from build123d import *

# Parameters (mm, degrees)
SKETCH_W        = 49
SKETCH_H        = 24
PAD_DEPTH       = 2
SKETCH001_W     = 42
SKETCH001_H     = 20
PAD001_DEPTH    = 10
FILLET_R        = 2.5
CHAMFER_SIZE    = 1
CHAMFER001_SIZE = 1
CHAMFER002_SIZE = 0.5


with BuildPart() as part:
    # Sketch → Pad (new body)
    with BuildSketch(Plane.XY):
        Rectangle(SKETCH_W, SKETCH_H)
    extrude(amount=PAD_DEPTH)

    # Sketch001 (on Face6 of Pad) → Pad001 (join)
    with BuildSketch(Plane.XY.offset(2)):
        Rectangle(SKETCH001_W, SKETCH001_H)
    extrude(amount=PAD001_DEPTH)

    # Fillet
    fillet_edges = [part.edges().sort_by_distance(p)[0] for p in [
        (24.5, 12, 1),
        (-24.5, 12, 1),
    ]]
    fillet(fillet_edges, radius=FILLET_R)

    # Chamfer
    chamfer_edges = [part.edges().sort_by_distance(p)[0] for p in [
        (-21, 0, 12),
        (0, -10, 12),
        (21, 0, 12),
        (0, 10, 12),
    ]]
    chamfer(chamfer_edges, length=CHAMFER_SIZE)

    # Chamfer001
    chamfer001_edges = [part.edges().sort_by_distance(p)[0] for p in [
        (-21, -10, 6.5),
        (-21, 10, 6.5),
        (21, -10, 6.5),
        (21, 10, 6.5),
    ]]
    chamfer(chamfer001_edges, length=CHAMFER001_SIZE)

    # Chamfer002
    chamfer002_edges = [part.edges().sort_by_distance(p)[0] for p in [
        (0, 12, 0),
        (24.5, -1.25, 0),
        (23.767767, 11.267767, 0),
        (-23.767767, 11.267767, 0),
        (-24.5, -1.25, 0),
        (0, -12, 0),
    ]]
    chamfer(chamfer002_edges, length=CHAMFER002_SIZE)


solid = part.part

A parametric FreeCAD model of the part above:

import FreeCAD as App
import Part
import Sketcher
from FreeCAD import Vector
Q = App.Units.Quantity


def edges_at(feature, points):
    """Names of the edges that pass closest to the given points."""
    edges = feature.Shape.Edges
    near = lambda p: min(range(len(edges)), key=lambda i: edges[i].distToShape(Part.Vertex(*p))[0])
    return sorted({f"Edge{near(p) + 1}" for p in points})

doc = App.newDocument("Part")
params = doc.addObject("Spreadsheet::Sheet", "Params")
for row, (alias, value) in enumerate([
    ("sketch1_width", "49 mm"),
    ("sketch1_height", "24 mm"),
    ("pad1_length", "2 mm"),
    ("sketch2_width", "42 mm"),
    ("sketch2_height", "20 mm"),
    ("pad2_length", "10 mm"),
    ("fillet_radius", "2.5 mm"),
    ("chamfer_size", "1 mm"),
    ("chamfer2_size", "1 mm"),
    ("chamfer3_size", "0.5 mm"),
], start=1):
    params.set(f"A{row}", alias)
    params.set(f"B{row}", "=" + value)
    params.setAlias(f"B{row}", alias)

body = doc.addObject("PartDesign::Body", "Body")

sketch1 = body.newObject("Sketcher::SketchObject", "Sketch")
sketch1.AttachmentSupport = (doc.getObject("XY_Plane"), [""])
sketch1.MapMode = "FlatFace"
sketch1.addGeometry([
    Part.LineSegment(Vector(-24, 12, 0), Vector(-24, -12, 0)),
    Part.LineSegment(Vector(-24, -12, 0), Vector(24, -12, 0)),
    Part.LineSegment(Vector(24, -12, 0), Vector(24, 12, 0)),
    Part.LineSegment(Vector(24, 12, 0), Vector(-24, 12, 0)),
], False)
sketch1.addConstraint([
    Sketcher.Constraint("Coincident", 0, 2, 1, 1),
    Sketcher.Constraint("Coincident", 1, 2, 2, 1),
    Sketcher.Constraint("Coincident", 2, 2, 3, 1),
    Sketcher.Constraint("Coincident", 3, 2, 0, 1),
    Sketcher.Constraint("Vertical", 0),
    Sketcher.Constraint("Horizontal", 1),
    Sketcher.Constraint("Vertical", 2),
    Sketcher.Constraint("Horizontal", 3),
    Sketcher.Constraint("Symmetric", 0, 2, 2, 2, -1, 1),
    Sketcher.Constraint("DistanceX", 1, 1, 1, 2, Q("49 mm")),
    Sketcher.Constraint("DistanceY", 0, 2, 0, 1, Q("24 mm")),
])
sketch1.setExpression("Constraints[9]", "Params.sketch1_width")
sketch1.setExpression("Constraints[10]", "Params.sketch1_height")
pad1 = body.newObject("PartDesign::Pad", "Pad")
pad1.Profile = sketch1
pad1.setExpression("Length", "Params.pad1_length")

sketch2 = body.newObject("Sketcher::SketchObject", "Sketch001")
sketch2.AttachmentSupport = (doc.getObject("XY_Plane"), [""])
sketch2.MapMode = "FlatFace"
sketch2.AttachmentOffset = App.Placement(Vector(0, 0, 2), App.Rotation())
sketch2.addGeometry([
    Part.LineSegment(Vector(-21, 10, 0), Vector(-21, -10, 0)),
    Part.LineSegment(Vector(-21, -10, 0), Vector(21, -10, 0)),
    Part.LineSegment(Vector(21, -10, 0), Vector(21, 10, 0)),
    Part.LineSegment(Vector(21, 10, 0), Vector(-21, 10, 0)),
], False)
sketch2.addConstraint([
    Sketcher.Constraint("Coincident", 0, 2, 1, 1),
    Sketcher.Constraint("Coincident", 1, 2, 2, 1),
    Sketcher.Constraint("Coincident", 2, 2, 3, 1),
    Sketcher.Constraint("Coincident", 3, 2, 0, 1),
    Sketcher.Constraint("Vertical", 0),
    Sketcher.Constraint("Horizontal", 1),
    Sketcher.Constraint("Vertical", 2),
    Sketcher.Constraint("Horizontal", 3),
    Sketcher.Constraint("Symmetric", 0, 2, 2, 2, -1, 1),
    Sketcher.Constraint("DistanceX", 1, 1, 1, 2, Q("42 mm")),
    Sketcher.Constraint("DistanceY", 0, 2, 0, 1, Q("20 mm")),
])
sketch2.setExpression("Constraints[9]", "Params.sketch2_width")
sketch2.setExpression("Constraints[10]", "Params.sketch2_height")
pad2 = body.newObject("PartDesign::Pad", "Pad001")
pad2.Profile = sketch2
pad2.setExpression("Length", "Params.pad2_length")
doc.recompute()

fillet = body.newObject("PartDesign::Fillet", "Fillet")
fillet.Base = (pad2, edges_at(pad2, [(24.5, 12, 1), (-24.5, 12, 1)]))
fillet.setExpression("Radius", "Params.fillet_radius")
doc.recompute()

chamfer = body.newObject("PartDesign::Chamfer", "Chamfer")
chamfer.Base = (fillet, edges_at(fillet, [
    (-21, 0, 12),
    (0, -10, 12),
    (21, 0, 12),
    (0, 10, 12),
]))
chamfer.setExpression("Size", "Params.chamfer_size")
doc.recompute()

chamfer2 = body.newObject("PartDesign::Chamfer", "Chamfer001")
chamfer2.Base = (chamfer, edges_at(chamfer, [
    (-21, -10, 6.5),
    (-21, 10, 6.5),
    (21, -10, 6.5),
    (21, 10, 6.5),
]))
chamfer2.setExpression("Size", "Params.chamfer2_size")
doc.recompute()

chamfer3 = body.newObject("PartDesign::Chamfer", "Chamfer002")
chamfer3.Base = (chamfer2, edges_at(chamfer2, [
    (0, 12, 0),
    (24.5, -1.25, 0),
    (23.768, 11.268, 0),
    (-23.768, 11.268, 0),
    (-24.5, -1.25, 0),
    (0, -12, 0),
]))
chamfer3.setExpression("Size", "Params.chamfer3_size")

doc.recompute()
